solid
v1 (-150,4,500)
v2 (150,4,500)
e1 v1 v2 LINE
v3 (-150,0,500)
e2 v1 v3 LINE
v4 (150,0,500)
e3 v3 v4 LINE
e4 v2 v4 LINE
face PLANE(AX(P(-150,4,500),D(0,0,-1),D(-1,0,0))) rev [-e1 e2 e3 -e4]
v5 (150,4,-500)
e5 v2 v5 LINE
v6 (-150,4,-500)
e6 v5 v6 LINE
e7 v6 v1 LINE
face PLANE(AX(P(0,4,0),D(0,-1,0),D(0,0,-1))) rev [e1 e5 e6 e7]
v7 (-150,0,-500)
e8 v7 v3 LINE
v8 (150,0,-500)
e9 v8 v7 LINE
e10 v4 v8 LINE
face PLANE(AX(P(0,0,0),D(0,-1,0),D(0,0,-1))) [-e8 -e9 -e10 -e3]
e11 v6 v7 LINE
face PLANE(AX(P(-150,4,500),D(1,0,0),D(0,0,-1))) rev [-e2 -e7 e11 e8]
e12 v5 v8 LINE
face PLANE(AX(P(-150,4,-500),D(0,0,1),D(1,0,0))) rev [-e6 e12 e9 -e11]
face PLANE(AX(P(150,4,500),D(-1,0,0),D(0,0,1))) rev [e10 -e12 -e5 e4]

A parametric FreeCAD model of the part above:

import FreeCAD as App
import Part
import Sketcher
from FreeCAD import Vector


def add_polygon(sketch, points):
    """Adds a closed chain of lines whose ends are joined by coincident constraints."""
    first, n = sketch.GeometryCount, len(points)
    for a, b in zip(points, points[1:] + points[:1]):
        sketch.addGeometry(Part.LineSegment(App.Vector(*a, 0), App.Vector(*b, 0)), False)
    for i in range(n):
        sketch.addConstraint(Sketcher.Constraint("Coincident", first + i, 2, first + (i + 1) % n, 1))

doc = App.newDocument("Part")
body = doc.addObject("PartDesign::Body", "Body")

# Sketch on XZ plane
sketch1 = doc.addObject("Sketcher::SketchObject", "Sketch")
body.addObject(sketch1)
sketch1.AttachmentSupport = (doc.XZ_Plane, [""])
sketch1.MapMode = "FlatFace"
add_polygon(sketch1, [(-150, -500), (-150, 500), (150, 500), (150, -500)])  # lines 0-3
sketch1.addConstraint(Sketcher.Constraint("Vertical", 0))
sketch1.addConstraint(Sketcher.Constraint("Horizontal", 1))
sketch1.addConstraint(Sketcher.Constraint("Vertical", 2))
sketch1.addConstraint(Sketcher.Constraint("Horizontal", 3))
sketch1.addConstraint(Sketcher.Constraint("Symmetric", 0, 2, 2, 2, -1, 1))
sketch1.addConstraint(Sketcher.Constraint("DistanceX", 1, 1, 1, 2, 300.0))
sketch1.addConstraint(Sketcher.Constraint("DistanceY", 0, 1, 0, 2, 1000.0))
pad1 = doc.addObject("PartDesign::Pad", "Pad")
body.addObject(pad1)
pad1.Profile = sketch1
pad1.Length = 4
pad1.Reversed = True

doc.recompute()
